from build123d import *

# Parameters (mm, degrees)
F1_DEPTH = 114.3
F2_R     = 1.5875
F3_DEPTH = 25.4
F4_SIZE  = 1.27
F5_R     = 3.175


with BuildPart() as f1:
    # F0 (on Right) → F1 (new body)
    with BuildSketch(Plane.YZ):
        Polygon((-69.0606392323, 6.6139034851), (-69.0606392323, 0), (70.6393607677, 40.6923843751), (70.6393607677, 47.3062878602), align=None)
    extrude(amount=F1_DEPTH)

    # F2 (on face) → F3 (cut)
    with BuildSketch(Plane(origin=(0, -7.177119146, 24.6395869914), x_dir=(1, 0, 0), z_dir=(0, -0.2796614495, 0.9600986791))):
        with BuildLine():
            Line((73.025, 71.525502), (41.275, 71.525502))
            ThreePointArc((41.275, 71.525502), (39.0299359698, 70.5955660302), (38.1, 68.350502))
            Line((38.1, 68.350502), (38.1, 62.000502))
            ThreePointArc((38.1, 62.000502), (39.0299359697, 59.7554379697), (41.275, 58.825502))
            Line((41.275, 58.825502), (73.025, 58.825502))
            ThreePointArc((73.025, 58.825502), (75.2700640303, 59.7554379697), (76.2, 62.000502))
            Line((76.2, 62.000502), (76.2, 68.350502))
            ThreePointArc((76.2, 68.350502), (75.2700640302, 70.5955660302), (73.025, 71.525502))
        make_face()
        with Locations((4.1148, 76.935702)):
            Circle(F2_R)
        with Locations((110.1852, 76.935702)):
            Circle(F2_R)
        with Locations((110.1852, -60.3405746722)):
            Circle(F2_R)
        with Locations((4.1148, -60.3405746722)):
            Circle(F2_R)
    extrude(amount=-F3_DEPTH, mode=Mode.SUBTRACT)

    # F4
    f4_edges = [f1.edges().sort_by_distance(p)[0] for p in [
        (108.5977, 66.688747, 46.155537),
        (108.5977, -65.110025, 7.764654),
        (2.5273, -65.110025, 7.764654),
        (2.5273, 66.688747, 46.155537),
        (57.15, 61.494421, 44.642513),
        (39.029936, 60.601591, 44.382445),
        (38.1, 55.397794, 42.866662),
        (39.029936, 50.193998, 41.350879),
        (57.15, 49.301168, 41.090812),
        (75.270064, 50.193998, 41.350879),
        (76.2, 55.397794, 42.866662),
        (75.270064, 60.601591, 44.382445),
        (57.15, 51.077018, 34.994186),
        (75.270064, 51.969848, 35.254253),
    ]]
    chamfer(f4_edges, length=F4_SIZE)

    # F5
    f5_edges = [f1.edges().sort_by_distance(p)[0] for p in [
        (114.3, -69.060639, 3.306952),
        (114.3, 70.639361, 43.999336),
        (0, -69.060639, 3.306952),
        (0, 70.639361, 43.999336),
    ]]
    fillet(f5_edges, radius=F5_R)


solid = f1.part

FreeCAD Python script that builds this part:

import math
import FreeCAD as App
import Part
import Sketcher
from FreeCAD import Vector
Q = App.Units.Quantity


def edges_at(feature, points):
    """Names of the edges that pass closest to the given points."""
    edges = feature.Shape.Edges
    near = lambda p: min(range(len(edges)), key=lambda i: edges[i].distToShape(Part.Vertex(*p))[0])
    return sorted({f"Edge{near(p) + 1}" for p in points})

doc = App.newDocument("Part")
params = doc.addObject("Spreadsheet::Sheet", "Params")
for row, (alias, value) in enumerate([
    ("pad1_length", "4.5 in"),
    ("sketch2_diameter", "0.125 in"),
    ("sketch2_radius", "0.125 in"),
    ("sketch2_width", "1.25 in"),
    ("sketch2_height", "0.25 in"),
    ("pocket1_length", "1 in"),
    ("chamfer_size", "0.05 in"),
    ("fillet_radius", "0.125 in"),
], start=1):
    params.set(f"A{row}", alias)
    params.set(f"B{row}", "=" + value)
    params.setAlias(f"B{row}", alias)

body = doc.addObject("PartDesign::Body", "Body")

sketch1 = body.newObject("Sketcher::SketchObject", "Sketch")
sketch1.AttachmentSupport = (doc.getObject("YZ_Plane"), [""])
sketch1.MapMode = "FlatFace"
sketch1.addGeometry([
    Part.LineSegment(Vector(-69, 7, 0), Vector(-69, 0, 0)),
    Part.LineSegment(Vector(-69, 0, 0), Vector(71, 41, 0)),
    Part.LineSegment(Vector(71, 41, 0), Vector(71, 47, 0)),
    Part.LineSegment(Vector(71, 47, 0), Vector(-69, 7, 0)),
], False)
sketch1.addConstraint([
    Sketcher.Constraint("Coincident", 0, 2, 1, 1),
    Sketcher.Constraint("Coincident", 1, 2, 2, 1),
    Sketcher.Constraint("Coincident", 2, 2, 3, 1),
    Sketcher.Constraint("Coincident", 3, 2, 0, 1),
    Sketcher.Constraint("Vertical", 0),
    Sketcher.Constraint("Vertical", 2),
    Sketcher.Constraint("PointOnObject", 0, 2, -1),
    Sketcher.Constraint("Parallel", 1, 3),
    Sketcher.Constraint("DistanceX", 0, 2, 1, 2, Q("5.5 in")),
    Sketcher.Constraint("Angle", 1, Q("16.24 deg")),
    Sketcher.Constraint("DistanceY", 0, 2, 0, 1, Q("6.613903 mm")),
    Sketcher.Constraint("DistanceX", 0, 2, -1, 1, Q("69.060639 mm")),
])
pad1 = body.newObject("PartDesign::Pad", "Pad")
pad1.Profile = sketch1
pad1.setExpression("Length", "Params.pad1_length")

sketch2 = body.newObject("Sketcher::SketchObject", "Sketch001")
sketch2.Placement = App.Placement(Vector(0, -7.177119, 24.639587), App.Rotation(Vector(1, 0, 0), Vector(0, 0.960098679, 0.27966145), Vector(0, -0.27966145, 0.960098679), "ZXY"))
sketch2.addGeometry([
    Part.LineSegment(Vector(73, 71.5, 0), Vector(41.3, 71.5, 0)),
    Part.ArcOfCircle(Part.Circle(Vector(41.3, 68.4, 0), Vector(0, 0, 1), 3.2), math.radians(90), math.radians(180)),
    Part.LineSegment(Vector(38.1, 68.4, 0), Vector(38.1, 62, 0)),
    Part.ArcOfCircle(Part.Circle(Vector(41.3, 62, 0), Vector(0, 0, 1), 3.2), math.radians(180), math.radians(270)),
    Part.LineSegment(Vector(41.3, 58.8, 0), Vector(73, 58.8, 0)),
    Part.ArcOfCircle(Part.Circle(Vector(73, 62, 0), Vector(0, 0, 1), 3.2), math.radians(-90), math.radians(0)),
    Part.LineSegment(Vector(76.2, 62, 0), Vector(76.2, 68.4, 0)),
    Part.ArcOfCircle(Part.Circle(Vector(73, 68.4, 0), Vector(0, 0, 1), 3.2), math.radians(0), math.radians(90)),
    Part.Circle(Vector(4.1, 76.9, 0), Vector(0, 0, 1), 1.6),
    Part.Circle(Vector(110.2, 76.9, 0), Vector(0, 0, 1), 1.6),
    Part.Circle(Vector(110.2, -60.3, 0), Vector(0, 0, 1), 1.6),
    Part.Circle(Vector(4.1, -60.3, 0), Vector(0, 0, 1), 1.6),
], False)
sketch2.addConstraint([
    Sketcher.Constraint("Tangent", 0, 2, 1, 1),
    Sketcher.Constraint("Tangent", 1, 2, 2, 1),
    Sketcher.Constraint("Tangent", 2, 2, 3, 1),
    Sketcher.Constraint("Tangent", 3, 2, 4, 1),
    Sketcher.Constraint("Tangent", 4, 2, 5, 1),
    Sketcher.Constraint("Tangent", 5, 2, 6, 1),
    Sketcher.Constraint("Tangent", 6, 2, 7, 1),
    Sketcher.Constraint("Tangent", 7, 2, 0, 1),
    Sketcher.Constraint("Horizontal", 0),
    Sketcher.Constraint("Vertical", 2),
    Sketcher.Constraint("Horizontal", 4),
    Sketcher.Constraint("Vertical", 6),
    Sketcher.Constraint("Equal", 1, 3),
    Sketcher.Constraint("Equal", 3, 5),
    Sketcher.Constraint("Equal", 5, 7),
    Sketcher.Constraint("Equal", 8, 9),
    Sketcher.Constraint("Equal", 9, 10),
    Sketcher.Constraint("Equal", 10, 11),
    Sketcher.Constraint("Horizontal", 8, 3, 9, 3),
    Sketcher.Constraint("Horizontal", 10, 3, 11, 3),
    Sketcher.Constraint("Vertical", 9, 3, 10, 3),
    Sketcher.Constraint("Vertical", 8, 3, 11, 3),
    Sketcher.Constraint("Diameter", 8, Q("0.125 in")),
    Sketcher.Constraint("DistanceX", -1, 1, 5, 2, Q("3 in")),
    Sketcher.Constraint("Radius", 1, Q("0.125 in")),
    Sketcher.Constraint("DistanceX", 0, 2, 0, 1, Q("1.25 in")),
    Sketcher.Constraint("DistanceY", 2, 2, 2, 1, Q("0.25 in")),
    Sketcher.Constraint("DistanceX", -1, 1, 8, 3, Q("0.162 in")),
    Sketcher.Constraint("DistanceX", -1, 1, 9, 3, Q("4.338 in")),
    Sketcher.Constraint("DistanceY", 1, 3, 8, 3, Q("0.338 in")),
    Sketcher.Constraint("DistanceY", -1, 1, 1, 3, Q("68.350502 mm")),
    Sketcher.Constraint("DistanceY", 10, 3, -1, 1, Q("60.340575 mm")),
])
sketch2.setExpression("Constraints[22]", "Params.sketch2_diameter")
sketch2.setExpression("Constraints[24]", "Params.sketch2_radius")
sketch2.setExpression("Constraints[25]", "Params.sketch2_width")
sketch2.setExpression("Constraints[26]", "Params.sketch2_height")
pocket1 = body.newObject("PartDesign::Pocket", "Pocket")
pocket1.Profile = sketch2
pocket1.setExpression("Length", "Params.pocket1_length")
doc.recompute()

chamfer = body.newObject("PartDesign::Chamfer", "Chamfer")
chamfer.Base = (pocket1, edges_at(pocket1, [
    (108.598, 66.689, 46.156),
    (108.598, -65.11, 7.765),
    (2.527, -65.11, 7.765),
    (2.527, 66.689, 46.156),
    (57.15, 61.494, 44.643),
    (39.03, 60.602, 44.382),
    (38.1, 55.398, 42.867),
    (39.03, 50.194, 41.351),
    (57.15, 49.301, 41.091),
    (75.27, 50.194, 41.351),
    (76.2, 55.398, 42.867),
    (75.27, 60.602, 44.382),
    (57.15, 51.077, 34.994),
    (75.27, 51.97, 35.254),
]))
chamfer.setExpression("Size", "Params.chamfer_size")
doc.recompute()

fillet = body.newObject("PartDesign::Fillet", "Fillet")
fillet.Base = (chamfer, edges_at(chamfer, [
    (114.3, -69.061, 3.307),
    (114.3, 70.639, 43.999),
    (0, -69.061, 3.307),
    (0, 70.639, 43.999),
]))
fillet.setExpression("Radius", "Params.fillet_radius")

doc.recompute()
